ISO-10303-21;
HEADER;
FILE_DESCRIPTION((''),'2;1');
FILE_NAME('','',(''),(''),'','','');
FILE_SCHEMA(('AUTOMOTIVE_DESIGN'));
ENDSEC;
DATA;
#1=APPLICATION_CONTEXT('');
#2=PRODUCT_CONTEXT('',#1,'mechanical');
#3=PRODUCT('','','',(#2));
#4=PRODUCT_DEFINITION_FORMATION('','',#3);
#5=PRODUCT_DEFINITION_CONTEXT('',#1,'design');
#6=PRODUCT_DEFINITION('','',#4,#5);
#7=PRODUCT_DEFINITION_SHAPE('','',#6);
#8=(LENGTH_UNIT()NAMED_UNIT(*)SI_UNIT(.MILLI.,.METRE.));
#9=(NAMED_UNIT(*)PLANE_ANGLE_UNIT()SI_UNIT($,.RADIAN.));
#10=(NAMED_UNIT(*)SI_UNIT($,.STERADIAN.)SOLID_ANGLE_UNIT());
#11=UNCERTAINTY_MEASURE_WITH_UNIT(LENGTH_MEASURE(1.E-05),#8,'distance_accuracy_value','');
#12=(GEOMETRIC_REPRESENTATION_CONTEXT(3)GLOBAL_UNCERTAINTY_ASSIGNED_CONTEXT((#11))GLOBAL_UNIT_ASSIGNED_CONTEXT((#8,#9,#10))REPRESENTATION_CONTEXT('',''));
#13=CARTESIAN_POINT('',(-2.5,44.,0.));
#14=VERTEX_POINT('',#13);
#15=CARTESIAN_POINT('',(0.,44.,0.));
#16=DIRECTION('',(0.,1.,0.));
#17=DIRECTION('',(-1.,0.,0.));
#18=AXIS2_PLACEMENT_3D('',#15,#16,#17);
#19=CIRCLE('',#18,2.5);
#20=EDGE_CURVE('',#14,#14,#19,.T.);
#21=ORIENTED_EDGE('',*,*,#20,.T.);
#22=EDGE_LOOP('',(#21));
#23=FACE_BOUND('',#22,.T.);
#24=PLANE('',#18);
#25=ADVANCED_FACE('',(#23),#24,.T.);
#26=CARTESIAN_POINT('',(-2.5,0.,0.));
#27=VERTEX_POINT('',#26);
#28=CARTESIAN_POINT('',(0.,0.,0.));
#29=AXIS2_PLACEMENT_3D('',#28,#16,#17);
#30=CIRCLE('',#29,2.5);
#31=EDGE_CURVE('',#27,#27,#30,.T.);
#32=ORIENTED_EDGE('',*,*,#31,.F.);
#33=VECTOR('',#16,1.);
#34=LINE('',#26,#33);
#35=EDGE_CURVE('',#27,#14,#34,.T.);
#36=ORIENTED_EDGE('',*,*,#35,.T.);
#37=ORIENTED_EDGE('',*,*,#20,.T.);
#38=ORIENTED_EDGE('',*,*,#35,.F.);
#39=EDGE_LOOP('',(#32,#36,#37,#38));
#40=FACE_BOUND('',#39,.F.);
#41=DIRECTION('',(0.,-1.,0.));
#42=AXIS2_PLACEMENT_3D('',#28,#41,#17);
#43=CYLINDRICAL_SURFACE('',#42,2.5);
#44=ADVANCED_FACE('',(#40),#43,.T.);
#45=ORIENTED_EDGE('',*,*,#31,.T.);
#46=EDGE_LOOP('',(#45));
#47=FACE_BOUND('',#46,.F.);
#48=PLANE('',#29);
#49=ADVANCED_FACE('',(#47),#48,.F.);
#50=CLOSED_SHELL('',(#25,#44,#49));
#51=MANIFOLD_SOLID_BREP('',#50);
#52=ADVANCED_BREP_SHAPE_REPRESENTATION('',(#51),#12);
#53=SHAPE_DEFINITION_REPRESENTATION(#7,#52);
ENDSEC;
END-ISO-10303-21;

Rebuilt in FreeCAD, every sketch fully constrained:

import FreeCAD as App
import Part
import Sketcher

doc = App.newDocument("Part")
body = doc.addObject("PartDesign::Body", "Body")

sketch1 = body.newObject("Sketcher::SketchObject", "Sketch")
sketch1.AttachmentSupport = (doc.getObject("XZ_Plane"), [""])
sketch1.MapMode = "FlatFace"
sketch1.addGeometry(Part.Circle(App.Vector(0, 0, 0), App.Vector(0, 0, 1), 2.5), False)
sketch1.addConstraint([
    Sketcher.Constraint("Coincident", 0, 3, -1, 1),
    Sketcher.Constraint("Diameter", 0, 5.0),
])
pad1 = body.newObject("PartDesign::Pad", "Pad")
pad1.Profile = sketch1
pad1.Length = 44
pad1.Reversed = True

doc.recompute()
